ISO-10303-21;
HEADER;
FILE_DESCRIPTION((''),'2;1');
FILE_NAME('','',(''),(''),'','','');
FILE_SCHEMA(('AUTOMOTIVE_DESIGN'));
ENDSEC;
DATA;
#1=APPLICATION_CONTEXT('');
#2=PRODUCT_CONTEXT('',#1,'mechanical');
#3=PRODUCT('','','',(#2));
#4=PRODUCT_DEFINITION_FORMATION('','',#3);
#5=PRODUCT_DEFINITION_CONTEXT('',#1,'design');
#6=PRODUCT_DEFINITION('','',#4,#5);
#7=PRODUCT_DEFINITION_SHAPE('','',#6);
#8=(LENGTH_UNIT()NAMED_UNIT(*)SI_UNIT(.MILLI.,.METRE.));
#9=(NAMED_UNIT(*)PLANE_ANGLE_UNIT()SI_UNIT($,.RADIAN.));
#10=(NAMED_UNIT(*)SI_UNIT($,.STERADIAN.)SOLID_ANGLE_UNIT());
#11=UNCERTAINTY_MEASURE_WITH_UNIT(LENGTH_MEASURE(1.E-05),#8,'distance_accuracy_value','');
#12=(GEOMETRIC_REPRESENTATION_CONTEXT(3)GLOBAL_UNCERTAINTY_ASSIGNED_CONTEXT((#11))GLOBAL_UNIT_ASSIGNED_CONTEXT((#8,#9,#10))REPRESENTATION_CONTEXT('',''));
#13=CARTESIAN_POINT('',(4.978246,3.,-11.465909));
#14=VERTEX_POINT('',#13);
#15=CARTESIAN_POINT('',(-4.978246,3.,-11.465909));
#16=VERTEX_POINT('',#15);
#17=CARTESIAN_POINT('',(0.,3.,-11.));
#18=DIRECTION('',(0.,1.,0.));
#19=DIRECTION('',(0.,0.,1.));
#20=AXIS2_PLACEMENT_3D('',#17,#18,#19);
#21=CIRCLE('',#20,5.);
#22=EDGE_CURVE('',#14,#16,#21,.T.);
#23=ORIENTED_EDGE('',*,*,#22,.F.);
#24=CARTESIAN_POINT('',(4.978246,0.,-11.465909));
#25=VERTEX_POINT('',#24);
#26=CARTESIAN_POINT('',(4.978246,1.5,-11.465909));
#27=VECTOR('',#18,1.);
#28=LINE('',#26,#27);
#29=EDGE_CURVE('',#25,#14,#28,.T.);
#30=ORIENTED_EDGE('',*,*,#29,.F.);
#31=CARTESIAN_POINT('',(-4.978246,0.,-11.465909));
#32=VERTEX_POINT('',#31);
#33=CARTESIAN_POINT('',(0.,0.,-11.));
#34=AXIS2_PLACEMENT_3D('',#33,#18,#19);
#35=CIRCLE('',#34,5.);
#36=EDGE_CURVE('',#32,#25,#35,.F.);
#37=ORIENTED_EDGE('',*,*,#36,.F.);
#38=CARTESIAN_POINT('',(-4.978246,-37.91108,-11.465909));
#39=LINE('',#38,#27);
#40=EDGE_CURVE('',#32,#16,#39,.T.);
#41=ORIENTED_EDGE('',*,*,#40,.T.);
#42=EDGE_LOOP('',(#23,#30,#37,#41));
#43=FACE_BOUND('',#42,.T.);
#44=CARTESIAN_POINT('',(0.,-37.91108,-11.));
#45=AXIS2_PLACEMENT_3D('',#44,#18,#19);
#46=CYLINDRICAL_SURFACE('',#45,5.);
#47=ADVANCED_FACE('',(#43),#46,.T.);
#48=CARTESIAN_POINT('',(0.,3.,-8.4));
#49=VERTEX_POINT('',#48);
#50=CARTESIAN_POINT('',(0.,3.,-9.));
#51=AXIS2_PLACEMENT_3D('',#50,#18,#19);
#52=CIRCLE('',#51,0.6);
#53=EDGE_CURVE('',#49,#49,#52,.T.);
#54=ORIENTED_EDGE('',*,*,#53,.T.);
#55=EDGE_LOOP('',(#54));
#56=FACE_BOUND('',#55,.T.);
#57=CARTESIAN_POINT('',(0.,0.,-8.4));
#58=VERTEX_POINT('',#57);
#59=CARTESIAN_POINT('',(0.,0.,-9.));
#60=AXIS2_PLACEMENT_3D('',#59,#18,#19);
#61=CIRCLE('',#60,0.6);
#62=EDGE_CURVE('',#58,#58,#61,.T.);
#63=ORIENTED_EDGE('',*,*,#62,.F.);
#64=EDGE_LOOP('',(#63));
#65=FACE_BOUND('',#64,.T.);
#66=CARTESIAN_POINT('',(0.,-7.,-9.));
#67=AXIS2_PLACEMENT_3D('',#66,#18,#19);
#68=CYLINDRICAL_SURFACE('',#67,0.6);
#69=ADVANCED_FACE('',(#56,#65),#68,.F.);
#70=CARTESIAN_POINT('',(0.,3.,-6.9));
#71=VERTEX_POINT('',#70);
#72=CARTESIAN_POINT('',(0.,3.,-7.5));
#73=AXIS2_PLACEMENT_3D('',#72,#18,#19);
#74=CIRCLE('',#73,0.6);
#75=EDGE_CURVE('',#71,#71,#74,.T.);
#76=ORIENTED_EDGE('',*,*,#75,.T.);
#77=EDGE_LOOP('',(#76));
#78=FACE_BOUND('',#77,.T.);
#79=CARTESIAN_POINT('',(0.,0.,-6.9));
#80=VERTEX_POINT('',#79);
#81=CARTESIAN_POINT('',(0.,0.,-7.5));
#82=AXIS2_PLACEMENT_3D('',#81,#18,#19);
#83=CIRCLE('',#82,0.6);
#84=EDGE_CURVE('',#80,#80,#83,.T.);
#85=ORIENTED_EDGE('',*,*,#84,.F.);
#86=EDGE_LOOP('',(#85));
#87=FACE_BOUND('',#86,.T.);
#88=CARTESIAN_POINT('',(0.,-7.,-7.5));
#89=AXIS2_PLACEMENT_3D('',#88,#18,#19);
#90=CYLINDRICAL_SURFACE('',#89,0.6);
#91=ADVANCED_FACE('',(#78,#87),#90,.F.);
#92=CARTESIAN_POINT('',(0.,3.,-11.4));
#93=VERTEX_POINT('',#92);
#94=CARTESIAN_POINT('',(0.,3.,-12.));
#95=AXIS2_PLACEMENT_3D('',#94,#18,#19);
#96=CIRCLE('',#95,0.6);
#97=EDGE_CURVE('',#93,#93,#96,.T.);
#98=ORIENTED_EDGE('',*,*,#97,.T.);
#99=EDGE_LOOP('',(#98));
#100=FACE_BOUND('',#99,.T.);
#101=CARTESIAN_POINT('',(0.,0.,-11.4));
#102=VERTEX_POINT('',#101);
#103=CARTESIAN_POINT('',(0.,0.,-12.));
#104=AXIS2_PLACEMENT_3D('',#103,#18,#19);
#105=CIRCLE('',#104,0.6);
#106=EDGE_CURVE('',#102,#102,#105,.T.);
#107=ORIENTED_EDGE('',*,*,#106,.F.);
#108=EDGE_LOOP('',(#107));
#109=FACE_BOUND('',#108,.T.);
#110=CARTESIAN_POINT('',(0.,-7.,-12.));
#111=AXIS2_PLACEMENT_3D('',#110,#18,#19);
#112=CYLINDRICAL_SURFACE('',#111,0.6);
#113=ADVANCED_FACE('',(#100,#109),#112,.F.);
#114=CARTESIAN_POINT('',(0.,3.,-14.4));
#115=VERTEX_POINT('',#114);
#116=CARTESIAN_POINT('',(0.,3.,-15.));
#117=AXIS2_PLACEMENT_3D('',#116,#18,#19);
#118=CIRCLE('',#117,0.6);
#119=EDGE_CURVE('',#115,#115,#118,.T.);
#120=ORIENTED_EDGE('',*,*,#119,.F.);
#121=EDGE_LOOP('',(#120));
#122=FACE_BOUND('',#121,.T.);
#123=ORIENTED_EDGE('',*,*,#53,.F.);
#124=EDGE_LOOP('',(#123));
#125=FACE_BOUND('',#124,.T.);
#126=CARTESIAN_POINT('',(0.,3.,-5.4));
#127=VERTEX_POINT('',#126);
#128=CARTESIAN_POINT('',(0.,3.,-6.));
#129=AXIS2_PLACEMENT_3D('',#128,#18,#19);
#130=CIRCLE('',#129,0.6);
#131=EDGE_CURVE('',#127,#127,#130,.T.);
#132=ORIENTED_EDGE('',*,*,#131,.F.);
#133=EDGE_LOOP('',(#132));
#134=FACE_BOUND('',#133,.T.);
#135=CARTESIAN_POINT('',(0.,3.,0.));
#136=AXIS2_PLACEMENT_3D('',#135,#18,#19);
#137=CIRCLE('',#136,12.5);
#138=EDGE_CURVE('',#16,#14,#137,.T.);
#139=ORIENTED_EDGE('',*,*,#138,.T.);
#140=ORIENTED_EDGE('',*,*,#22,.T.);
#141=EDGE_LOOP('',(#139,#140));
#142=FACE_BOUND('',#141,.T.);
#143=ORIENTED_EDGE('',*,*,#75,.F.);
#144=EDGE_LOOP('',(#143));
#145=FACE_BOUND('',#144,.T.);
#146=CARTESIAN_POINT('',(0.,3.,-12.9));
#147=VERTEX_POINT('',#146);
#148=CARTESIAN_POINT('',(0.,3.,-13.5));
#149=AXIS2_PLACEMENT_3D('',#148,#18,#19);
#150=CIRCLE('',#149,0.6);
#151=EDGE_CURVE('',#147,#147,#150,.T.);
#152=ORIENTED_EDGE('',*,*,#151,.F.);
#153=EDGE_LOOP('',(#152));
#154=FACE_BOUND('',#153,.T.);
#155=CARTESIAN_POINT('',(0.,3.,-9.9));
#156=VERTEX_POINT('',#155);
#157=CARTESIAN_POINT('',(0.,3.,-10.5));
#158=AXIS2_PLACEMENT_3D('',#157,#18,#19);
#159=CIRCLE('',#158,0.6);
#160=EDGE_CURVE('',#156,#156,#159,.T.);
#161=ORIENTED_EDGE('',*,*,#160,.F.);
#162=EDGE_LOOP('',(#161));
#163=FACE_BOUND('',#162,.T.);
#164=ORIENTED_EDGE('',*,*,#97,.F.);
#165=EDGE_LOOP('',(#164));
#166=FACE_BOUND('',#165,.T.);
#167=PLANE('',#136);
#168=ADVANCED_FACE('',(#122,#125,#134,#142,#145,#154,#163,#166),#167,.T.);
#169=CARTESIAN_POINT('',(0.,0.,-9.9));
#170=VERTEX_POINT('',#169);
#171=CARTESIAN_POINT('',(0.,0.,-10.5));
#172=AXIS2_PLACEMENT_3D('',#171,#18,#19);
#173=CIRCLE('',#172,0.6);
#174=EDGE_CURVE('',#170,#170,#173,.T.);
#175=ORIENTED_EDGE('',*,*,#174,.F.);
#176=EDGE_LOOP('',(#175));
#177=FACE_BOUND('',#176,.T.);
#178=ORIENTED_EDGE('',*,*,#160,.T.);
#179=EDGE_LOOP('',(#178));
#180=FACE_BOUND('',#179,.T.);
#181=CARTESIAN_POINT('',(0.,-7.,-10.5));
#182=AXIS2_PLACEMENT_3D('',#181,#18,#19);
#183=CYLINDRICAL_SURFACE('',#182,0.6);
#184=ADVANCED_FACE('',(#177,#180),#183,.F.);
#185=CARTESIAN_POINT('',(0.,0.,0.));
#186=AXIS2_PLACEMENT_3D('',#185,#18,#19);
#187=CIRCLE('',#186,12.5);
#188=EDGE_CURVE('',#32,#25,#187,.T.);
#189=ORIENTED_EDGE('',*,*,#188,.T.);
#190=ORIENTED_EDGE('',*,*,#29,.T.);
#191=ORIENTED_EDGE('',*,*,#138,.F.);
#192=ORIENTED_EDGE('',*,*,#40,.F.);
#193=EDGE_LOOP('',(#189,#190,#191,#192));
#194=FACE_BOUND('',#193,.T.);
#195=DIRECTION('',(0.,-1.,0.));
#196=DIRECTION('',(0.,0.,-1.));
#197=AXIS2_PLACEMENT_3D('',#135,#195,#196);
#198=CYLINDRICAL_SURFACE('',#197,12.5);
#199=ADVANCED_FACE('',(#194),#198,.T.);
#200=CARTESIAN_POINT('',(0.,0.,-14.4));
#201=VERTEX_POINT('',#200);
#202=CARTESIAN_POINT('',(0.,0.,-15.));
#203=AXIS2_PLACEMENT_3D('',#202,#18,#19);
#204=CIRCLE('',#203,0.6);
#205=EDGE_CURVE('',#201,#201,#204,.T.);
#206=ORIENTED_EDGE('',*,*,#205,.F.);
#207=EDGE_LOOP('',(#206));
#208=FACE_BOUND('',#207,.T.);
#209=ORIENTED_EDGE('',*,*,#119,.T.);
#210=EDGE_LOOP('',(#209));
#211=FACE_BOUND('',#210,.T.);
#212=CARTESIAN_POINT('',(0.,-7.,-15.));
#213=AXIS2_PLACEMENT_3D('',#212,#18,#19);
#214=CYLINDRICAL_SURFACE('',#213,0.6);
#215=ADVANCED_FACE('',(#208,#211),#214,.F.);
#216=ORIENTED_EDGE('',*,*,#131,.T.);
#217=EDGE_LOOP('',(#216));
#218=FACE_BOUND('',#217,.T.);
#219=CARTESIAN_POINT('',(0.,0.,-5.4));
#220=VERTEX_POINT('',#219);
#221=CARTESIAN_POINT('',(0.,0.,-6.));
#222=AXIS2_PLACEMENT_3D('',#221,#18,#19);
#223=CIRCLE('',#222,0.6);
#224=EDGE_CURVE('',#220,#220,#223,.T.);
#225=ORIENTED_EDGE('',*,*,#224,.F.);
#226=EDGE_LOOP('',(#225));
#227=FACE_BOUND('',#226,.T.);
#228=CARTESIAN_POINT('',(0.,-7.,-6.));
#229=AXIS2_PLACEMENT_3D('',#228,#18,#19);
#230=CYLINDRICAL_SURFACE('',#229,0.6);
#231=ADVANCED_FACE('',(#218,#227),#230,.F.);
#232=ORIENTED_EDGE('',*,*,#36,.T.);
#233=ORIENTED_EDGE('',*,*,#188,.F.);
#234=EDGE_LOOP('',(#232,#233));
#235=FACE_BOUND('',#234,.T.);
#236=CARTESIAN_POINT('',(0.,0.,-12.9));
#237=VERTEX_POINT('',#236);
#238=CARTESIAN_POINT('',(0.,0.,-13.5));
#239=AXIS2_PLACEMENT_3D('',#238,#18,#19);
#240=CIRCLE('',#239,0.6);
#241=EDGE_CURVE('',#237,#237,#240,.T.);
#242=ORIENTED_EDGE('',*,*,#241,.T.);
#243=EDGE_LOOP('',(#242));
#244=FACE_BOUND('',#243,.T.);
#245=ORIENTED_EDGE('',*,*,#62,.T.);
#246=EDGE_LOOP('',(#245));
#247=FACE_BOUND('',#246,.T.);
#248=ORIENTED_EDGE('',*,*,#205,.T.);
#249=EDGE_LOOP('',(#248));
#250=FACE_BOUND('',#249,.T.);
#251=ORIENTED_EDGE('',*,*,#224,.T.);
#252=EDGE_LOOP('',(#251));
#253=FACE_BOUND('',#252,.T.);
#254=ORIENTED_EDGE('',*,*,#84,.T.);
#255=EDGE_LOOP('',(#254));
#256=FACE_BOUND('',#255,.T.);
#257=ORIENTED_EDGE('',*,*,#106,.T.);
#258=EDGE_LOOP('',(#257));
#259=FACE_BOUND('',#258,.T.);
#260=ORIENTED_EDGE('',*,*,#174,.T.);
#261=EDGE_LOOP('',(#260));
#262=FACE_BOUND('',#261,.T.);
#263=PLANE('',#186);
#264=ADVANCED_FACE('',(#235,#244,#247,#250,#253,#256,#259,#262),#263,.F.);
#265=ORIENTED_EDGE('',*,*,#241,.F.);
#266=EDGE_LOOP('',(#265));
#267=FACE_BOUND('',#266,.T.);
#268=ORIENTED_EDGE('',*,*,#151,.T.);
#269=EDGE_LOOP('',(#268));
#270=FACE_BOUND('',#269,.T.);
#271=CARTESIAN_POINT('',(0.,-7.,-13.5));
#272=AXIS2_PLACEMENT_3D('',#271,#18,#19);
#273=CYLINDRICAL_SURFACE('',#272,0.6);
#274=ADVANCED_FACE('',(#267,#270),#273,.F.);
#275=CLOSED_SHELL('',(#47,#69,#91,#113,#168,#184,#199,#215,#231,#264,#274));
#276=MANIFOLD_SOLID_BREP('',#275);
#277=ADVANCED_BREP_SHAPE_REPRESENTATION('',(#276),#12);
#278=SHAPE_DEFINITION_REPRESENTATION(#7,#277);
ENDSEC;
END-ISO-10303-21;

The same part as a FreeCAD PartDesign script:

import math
import FreeCAD as App
import Part
import Sketcher
from FreeCAD import Vector
Q = App.Units.Quantity

doc = App.newDocument("Part")
body = doc.addObject("PartDesign::Body", "Body")

sketch1 = doc.addObject("Sketcher::SketchObject", "Sketch")
body.addObject(sketch1)
sketch1.AttachmentSupport = (doc.XZ_Plane, [""])
sketch1.MapMode = "FlatFace"
sketch1.addGeometry(Part.Circle(Vector(0, 0, 0), Vector(0, 0, 1), 12), False)
sketch1.addConstraint([
    Sketcher.Constraint("Coincident", 0, 3, -1, 1),
    Sketcher.Constraint("Diameter", 0, Q("25 mm")),
])
pad1 = doc.addObject("PartDesign::Pad", "Pad")
body.addObject(pad1)
pad1.Profile = sketch1
pad1.Length = 3
pad1.Reversed = True

sketch2 = doc.addObject("Sketcher::SketchObject", "Sketch001")
body.addObject(sketch2)
sketch2.AttachmentSupport = (doc.XZ_Plane, [""])
sketch2.MapMode = "FlatFace"
sketch2.AttachmentOffset = App.Placement(Vector(0, 0, -3), App.Rotation())
sketch2.addGeometry(Part.Circle(Vector(0, -11, 0), Vector(0, 0, 1), 5), False)
sketch2.addConstraint([
    Sketcher.Constraint("PointOnObject", 0, 3, -2),
    Sketcher.Constraint("Diameter", 0, Q("10 mm")),
    Sketcher.Constraint("DistanceY", 0, 3, -1, 1, Q("11 mm")),
])
pad2 = doc.addObject("PartDesign::Pad", "Pad001")
body.addObject(pad2)
pad2.Profile = sketch2
pad2.Length = 3

sketch3 = doc.addObject("Sketcher::SketchObject", "Sketch002")
body.addObject(sketch3)
sketch3.AttachmentSupport = (doc.XZ_Plane, [""])
sketch3.MapMode = "FlatFace"
sketch3.AttachmentOffset = App.Placement(Vector(0, 0, -3), App.Rotation())
sketch3.addGeometry([
    Part.ArcOfCircle(Part.Circle(Vector(0, -6, 0), Vector(0, 0, 1), 0.6), math.radians(-90), math.radians(0)),
    Part.ArcOfCircle(Part.Circle(Vector(0, -6, 0), Vector(0, 0, 1), 0.6), math.radians(90), math.radians(270)),
    Part.ArcOfCircle(Part.Circle(Vector(0, -6, 0), Vector(0, 0, 1), 0.6), math.radians(0), math.radians(90)),
    Part.ArcOfCircle(Part.Circle(Vector(0, -7.5, 0), Vector(0, 0, 1), 0.6), math.radians(-90), math.radians(0)),
    Part.ArcOfCircle(Part.Circle(Vector(0, -7.5, 0), Vector(0, 0, 1), 0.6), math.radians(90), math.radians(270)),
    Part.ArcOfCircle(Part.Circle(Vector(0, -7.5, 0), Vector(0, 0, 1), 0.6), math.radians(0), math.radians(90)),
    Part.ArcOfCircle(Part.Circle(Vector(0, -9, 0), Vector(0, 0, 1), 0.6), math.radians(-90), math.radians(0)),
    Part.ArcOfCircle(Part.Circle(Vector(0, -9, 0), Vector(0, 0, 1), 0.6), math.radians(90), math.radians(270)),
    Part.ArcOfCircle(Part.Circle(Vector(0, -9, 0), Vector(0, 0, 1), 0.6), math.radians(0), math.radians(90)),
    Part.ArcOfCircle(Part.Circle(Vector(0, -10.5, 0), Vector(0, 0, 1), 0.6), math.radians(-90), math.radians(0)),
    Part.ArcOfCircle(Part.Circle(Vector(0, -10.5, 0), Vector(0, 0, 1), 0.6), math.radians(90), math.radians(270)),
    Part.ArcOfCircle(Part.Circle(Vector(0, -10.5, 0), Vector(0, 0, 1), 0.6), math.radians(0), math.radians(90)),
    Part.ArcOfCircle(Part.Circle(Vector(0, -12, 0), Vector(0, 0, 1), 0.6), math.radians(-90), math.radians(0)),
    Part.ArcOfCircle(Part.Circle(Vector(0, -12, 0), Vector(0, 0, 1), 0.6), math.radians(90), math.radians(270)),
    Part.ArcOfCircle(Part.Circle(Vector(0, -12, 0), Vector(0, 0, 1), 0.6), math.radians(0), math.radians(90)),
    Part.ArcOfCircle(Part.Circle(Vector(0, -13.5, 0), Vector(0, 0, 1), 0.6), math.radians(-90), math.radians(0)),
    Part.ArcOfCircle(Part.Circle(Vector(0, -13.5, 0), Vector(0, 0, 1), 0.6), math.radians(90), math.radians(270)),
    Part.ArcOfCircle(Part.Circle(Vector(0, -13.5, 0), Vector(0, 0, 1), 0.6), math.radians(0), math.radians(90)),
    Part.ArcOfCircle(Part.Circle(Vector(0, -15, 0), Vector(0, 0, 1), 0.6), math.radians(-90), math.radians(0)),
    Part.ArcOfCircle(Part.Circle(Vector(0, -15, 0), Vector(0, 0, 1), 0.6), math.radians(90), math.radians(270)),
    Part.ArcOfCircle(Part.Circle(Vector(0, -15, 0), Vector(0, 0, 1), 0.6), math.radians(0), math.radians(90)),
], False)
sketch3.addConstraint([
    Sketcher.Constraint("Tangent", 0, 1, 1, 2),
    Sketcher.Constraint("Tangent", 1, 1, 2, 2),
    Sketcher.Constraint("Tangent", 2, 1, 0, 2),
    Sketcher.Constraint("Tangent", 3, 1, 4, 2),
    Sketcher.Constraint("Tangent", 4, 1, 5, 2),
    Sketcher.Constraint("Tangent", 5, 1, 3, 2),
    Sketcher.Constraint("Tangent", 6, 1, 7, 2),
    Sketcher.Constraint("Tangent", 7, 1, 8, 2),
    Sketcher.Constraint("Tangent", 8, 1, 6, 2),
    Sketcher.Constraint("Tangent", 9, 1, 10, 2),
    Sketcher.Constraint("Tangent", 10, 1, 11, 2),
    Sketcher.Constraint("Tangent", 11, 1, 9, 2),
    Sketcher.Constraint("Tangent", 12, 1, 13, 2),
    Sketcher.Constraint("Tangent", 13, 1, 14, 2),
    Sketcher.Constraint("Tangent", 14, 1, 12, 2),
    Sketcher.Constraint("Tangent", 15, 1, 16, 2),
    Sketcher.Constraint("Tangent", 16, 1, 17, 2),
    Sketcher.Constraint("Tangent", 17, 1, 15, 2),
    Sketcher.Constraint("Tangent", 18, 1, 19, 2),
    Sketcher.Constraint("Tangent", 19, 1, 20, 2),
    Sketcher.Constraint("Tangent", 20, 1, 18, 2),
    Sketcher.Constraint("Equal", 2, 3),
    Sketcher.Constraint("Equal", 5, 6),
    Sketcher.Constraint("Equal", 8, 9),
    Sketcher.Constraint("Equal", 11, 12),
    Sketcher.Constraint("Equal", 14, 15),
    Sketcher.Constraint("Equal", 17, 18),
    Sketcher.Constraint("PointOnObject", 0, 3, -2),
    Sketcher.Constraint("PointOnObject", 3, 3, -2),
    Sketcher.Constraint("PointOnObject", 6, 3, -2),
    Sketcher.Constraint("PointOnObject", 9, 3, -2),
    Sketcher.Constraint("PointOnObject", 12, 3, -2),
    Sketcher.Constraint("PointOnObject", 15, 3, -2),
    Sketcher.Constraint("PointOnObject", 18, 3, -2),
    Sketcher.Constraint("PointOnObject", 0, 1, -2),
    Sketcher.Constraint("PointOnObject", 1, 1, -2),
    Sketcher.Constraint("PointOnObject", 3, 1, -2),
    Sketcher.Constraint("PointOnObject", 4, 1, -2),
    Sketcher.Constraint("PointOnObject", 6, 1, -2),
    Sketcher.Constraint("PointOnObject", 7, 1, -2),
    Sketcher.Constraint("PointOnObject", 9, 1, -2),
    Sketcher.Constraint("PointOnObject", 10, 1, -2),
    Sketcher.Constraint("PointOnObject", 12, 1, -2),
    Sketcher.Constraint("PointOnObject", 13, 1, -2),
    Sketcher.Constraint("PointOnObject", 15, 1, -2),
    Sketcher.Constraint("PointOnObject", 16, 1, -2),
    Sketcher.Constraint("PointOnObject", 18, 1, -2),
    Sketcher.Constraint("PointOnObject", 19, 1, -2),
    Sketcher.Constraint("Horizontal", 1, 3, 2, 1),
    Sketcher.Constraint("Horizontal", 4, 3, 5, 1),
    Sketcher.Constraint("Horizontal", 7, 3, 8, 1),
    Sketcher.Constraint("Horizontal", 10, 3, 11, 1),
    Sketcher.Constraint("Horizontal", 13, 3, 14, 1),
    Sketcher.Constraint("Horizontal", 16, 3, 17, 1),
    Sketcher.Constraint("Horizontal", 19, 3, 20, 1),
    Sketcher.Constraint("Radius", 0, Q("0.6 mm")),
    Sketcher.Constraint("DistanceY", 0, 3, -1, 1, Q("6 mm")),
    Sketcher.Constraint("DistanceY", 6, 3, -1, 1, Q("9 mm")),
    Sketcher.Constraint("DistanceY", 12, 3, -1, 1, Q("12 mm")),
    Sketcher.Constraint("DistanceY", 18, 3, -1, 1, Q("15 mm")),
    Sketcher.Constraint("DistanceY", 9, 3, 3, 3, Q("3 mm")),
    Sketcher.Constraint("DistanceY", 15, 3, 9, 3, Q("3 mm")),
    Sketcher.Constraint("DistanceY", 3, 3, -1, 1, Q("7.5 mm")),
])
pocket1 = doc.addObject("PartDesign::Pocket", "Pocket")
body.addObject(pocket1)
pocket1.Profile = sketch3
pocket1.Length = 10
pocket1.Reversed = True

doc.recompute()
